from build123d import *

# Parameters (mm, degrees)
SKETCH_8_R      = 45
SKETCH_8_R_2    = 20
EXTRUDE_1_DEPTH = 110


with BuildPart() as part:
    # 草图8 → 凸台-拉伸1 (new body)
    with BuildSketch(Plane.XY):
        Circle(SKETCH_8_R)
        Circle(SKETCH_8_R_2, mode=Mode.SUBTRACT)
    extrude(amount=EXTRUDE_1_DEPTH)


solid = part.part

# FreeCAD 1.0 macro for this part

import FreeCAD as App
import Part
import Sketcher
from FreeCAD import Vector

doc = App.newDocument("Part")
body = doc.addObject("PartDesign::Body", "Body")

# Sketch on XY plane
sketch1 = body.newObject("Sketcher::SketchObject", "Sketch")
sketch1.AttachmentSupport = (doc.getObject("XY_Plane"), [""])
sketch1.MapMode = "FlatFace"
sketch1.addGeometry(Part.Circle(Vector(0, 0, 0), Vector(0, 0, 1), 45), False)
sketch1.addGeometry(Part.Circle(Vector(0, 0, 0), Vector(0, 0, 1), 20), False)
sketch1.addConstraint(Sketcher.Constraint("Coincident", 0, 3, -1, 1))
sketch1.addConstraint(Sketcher.Constraint("Coincident", 1, 3, -1, 1))
sketch1.addConstraint(Sketcher.Constraint("Diameter", 0, 90.0))
sketch1.addConstraint(Sketcher.Constraint("Diameter", 1, 40.0))
pad1 = body.newObject("PartDesign::Pad", "Pad")
pad1.Profile = sketch1
pad1.Length = 110

doc.recompute()
